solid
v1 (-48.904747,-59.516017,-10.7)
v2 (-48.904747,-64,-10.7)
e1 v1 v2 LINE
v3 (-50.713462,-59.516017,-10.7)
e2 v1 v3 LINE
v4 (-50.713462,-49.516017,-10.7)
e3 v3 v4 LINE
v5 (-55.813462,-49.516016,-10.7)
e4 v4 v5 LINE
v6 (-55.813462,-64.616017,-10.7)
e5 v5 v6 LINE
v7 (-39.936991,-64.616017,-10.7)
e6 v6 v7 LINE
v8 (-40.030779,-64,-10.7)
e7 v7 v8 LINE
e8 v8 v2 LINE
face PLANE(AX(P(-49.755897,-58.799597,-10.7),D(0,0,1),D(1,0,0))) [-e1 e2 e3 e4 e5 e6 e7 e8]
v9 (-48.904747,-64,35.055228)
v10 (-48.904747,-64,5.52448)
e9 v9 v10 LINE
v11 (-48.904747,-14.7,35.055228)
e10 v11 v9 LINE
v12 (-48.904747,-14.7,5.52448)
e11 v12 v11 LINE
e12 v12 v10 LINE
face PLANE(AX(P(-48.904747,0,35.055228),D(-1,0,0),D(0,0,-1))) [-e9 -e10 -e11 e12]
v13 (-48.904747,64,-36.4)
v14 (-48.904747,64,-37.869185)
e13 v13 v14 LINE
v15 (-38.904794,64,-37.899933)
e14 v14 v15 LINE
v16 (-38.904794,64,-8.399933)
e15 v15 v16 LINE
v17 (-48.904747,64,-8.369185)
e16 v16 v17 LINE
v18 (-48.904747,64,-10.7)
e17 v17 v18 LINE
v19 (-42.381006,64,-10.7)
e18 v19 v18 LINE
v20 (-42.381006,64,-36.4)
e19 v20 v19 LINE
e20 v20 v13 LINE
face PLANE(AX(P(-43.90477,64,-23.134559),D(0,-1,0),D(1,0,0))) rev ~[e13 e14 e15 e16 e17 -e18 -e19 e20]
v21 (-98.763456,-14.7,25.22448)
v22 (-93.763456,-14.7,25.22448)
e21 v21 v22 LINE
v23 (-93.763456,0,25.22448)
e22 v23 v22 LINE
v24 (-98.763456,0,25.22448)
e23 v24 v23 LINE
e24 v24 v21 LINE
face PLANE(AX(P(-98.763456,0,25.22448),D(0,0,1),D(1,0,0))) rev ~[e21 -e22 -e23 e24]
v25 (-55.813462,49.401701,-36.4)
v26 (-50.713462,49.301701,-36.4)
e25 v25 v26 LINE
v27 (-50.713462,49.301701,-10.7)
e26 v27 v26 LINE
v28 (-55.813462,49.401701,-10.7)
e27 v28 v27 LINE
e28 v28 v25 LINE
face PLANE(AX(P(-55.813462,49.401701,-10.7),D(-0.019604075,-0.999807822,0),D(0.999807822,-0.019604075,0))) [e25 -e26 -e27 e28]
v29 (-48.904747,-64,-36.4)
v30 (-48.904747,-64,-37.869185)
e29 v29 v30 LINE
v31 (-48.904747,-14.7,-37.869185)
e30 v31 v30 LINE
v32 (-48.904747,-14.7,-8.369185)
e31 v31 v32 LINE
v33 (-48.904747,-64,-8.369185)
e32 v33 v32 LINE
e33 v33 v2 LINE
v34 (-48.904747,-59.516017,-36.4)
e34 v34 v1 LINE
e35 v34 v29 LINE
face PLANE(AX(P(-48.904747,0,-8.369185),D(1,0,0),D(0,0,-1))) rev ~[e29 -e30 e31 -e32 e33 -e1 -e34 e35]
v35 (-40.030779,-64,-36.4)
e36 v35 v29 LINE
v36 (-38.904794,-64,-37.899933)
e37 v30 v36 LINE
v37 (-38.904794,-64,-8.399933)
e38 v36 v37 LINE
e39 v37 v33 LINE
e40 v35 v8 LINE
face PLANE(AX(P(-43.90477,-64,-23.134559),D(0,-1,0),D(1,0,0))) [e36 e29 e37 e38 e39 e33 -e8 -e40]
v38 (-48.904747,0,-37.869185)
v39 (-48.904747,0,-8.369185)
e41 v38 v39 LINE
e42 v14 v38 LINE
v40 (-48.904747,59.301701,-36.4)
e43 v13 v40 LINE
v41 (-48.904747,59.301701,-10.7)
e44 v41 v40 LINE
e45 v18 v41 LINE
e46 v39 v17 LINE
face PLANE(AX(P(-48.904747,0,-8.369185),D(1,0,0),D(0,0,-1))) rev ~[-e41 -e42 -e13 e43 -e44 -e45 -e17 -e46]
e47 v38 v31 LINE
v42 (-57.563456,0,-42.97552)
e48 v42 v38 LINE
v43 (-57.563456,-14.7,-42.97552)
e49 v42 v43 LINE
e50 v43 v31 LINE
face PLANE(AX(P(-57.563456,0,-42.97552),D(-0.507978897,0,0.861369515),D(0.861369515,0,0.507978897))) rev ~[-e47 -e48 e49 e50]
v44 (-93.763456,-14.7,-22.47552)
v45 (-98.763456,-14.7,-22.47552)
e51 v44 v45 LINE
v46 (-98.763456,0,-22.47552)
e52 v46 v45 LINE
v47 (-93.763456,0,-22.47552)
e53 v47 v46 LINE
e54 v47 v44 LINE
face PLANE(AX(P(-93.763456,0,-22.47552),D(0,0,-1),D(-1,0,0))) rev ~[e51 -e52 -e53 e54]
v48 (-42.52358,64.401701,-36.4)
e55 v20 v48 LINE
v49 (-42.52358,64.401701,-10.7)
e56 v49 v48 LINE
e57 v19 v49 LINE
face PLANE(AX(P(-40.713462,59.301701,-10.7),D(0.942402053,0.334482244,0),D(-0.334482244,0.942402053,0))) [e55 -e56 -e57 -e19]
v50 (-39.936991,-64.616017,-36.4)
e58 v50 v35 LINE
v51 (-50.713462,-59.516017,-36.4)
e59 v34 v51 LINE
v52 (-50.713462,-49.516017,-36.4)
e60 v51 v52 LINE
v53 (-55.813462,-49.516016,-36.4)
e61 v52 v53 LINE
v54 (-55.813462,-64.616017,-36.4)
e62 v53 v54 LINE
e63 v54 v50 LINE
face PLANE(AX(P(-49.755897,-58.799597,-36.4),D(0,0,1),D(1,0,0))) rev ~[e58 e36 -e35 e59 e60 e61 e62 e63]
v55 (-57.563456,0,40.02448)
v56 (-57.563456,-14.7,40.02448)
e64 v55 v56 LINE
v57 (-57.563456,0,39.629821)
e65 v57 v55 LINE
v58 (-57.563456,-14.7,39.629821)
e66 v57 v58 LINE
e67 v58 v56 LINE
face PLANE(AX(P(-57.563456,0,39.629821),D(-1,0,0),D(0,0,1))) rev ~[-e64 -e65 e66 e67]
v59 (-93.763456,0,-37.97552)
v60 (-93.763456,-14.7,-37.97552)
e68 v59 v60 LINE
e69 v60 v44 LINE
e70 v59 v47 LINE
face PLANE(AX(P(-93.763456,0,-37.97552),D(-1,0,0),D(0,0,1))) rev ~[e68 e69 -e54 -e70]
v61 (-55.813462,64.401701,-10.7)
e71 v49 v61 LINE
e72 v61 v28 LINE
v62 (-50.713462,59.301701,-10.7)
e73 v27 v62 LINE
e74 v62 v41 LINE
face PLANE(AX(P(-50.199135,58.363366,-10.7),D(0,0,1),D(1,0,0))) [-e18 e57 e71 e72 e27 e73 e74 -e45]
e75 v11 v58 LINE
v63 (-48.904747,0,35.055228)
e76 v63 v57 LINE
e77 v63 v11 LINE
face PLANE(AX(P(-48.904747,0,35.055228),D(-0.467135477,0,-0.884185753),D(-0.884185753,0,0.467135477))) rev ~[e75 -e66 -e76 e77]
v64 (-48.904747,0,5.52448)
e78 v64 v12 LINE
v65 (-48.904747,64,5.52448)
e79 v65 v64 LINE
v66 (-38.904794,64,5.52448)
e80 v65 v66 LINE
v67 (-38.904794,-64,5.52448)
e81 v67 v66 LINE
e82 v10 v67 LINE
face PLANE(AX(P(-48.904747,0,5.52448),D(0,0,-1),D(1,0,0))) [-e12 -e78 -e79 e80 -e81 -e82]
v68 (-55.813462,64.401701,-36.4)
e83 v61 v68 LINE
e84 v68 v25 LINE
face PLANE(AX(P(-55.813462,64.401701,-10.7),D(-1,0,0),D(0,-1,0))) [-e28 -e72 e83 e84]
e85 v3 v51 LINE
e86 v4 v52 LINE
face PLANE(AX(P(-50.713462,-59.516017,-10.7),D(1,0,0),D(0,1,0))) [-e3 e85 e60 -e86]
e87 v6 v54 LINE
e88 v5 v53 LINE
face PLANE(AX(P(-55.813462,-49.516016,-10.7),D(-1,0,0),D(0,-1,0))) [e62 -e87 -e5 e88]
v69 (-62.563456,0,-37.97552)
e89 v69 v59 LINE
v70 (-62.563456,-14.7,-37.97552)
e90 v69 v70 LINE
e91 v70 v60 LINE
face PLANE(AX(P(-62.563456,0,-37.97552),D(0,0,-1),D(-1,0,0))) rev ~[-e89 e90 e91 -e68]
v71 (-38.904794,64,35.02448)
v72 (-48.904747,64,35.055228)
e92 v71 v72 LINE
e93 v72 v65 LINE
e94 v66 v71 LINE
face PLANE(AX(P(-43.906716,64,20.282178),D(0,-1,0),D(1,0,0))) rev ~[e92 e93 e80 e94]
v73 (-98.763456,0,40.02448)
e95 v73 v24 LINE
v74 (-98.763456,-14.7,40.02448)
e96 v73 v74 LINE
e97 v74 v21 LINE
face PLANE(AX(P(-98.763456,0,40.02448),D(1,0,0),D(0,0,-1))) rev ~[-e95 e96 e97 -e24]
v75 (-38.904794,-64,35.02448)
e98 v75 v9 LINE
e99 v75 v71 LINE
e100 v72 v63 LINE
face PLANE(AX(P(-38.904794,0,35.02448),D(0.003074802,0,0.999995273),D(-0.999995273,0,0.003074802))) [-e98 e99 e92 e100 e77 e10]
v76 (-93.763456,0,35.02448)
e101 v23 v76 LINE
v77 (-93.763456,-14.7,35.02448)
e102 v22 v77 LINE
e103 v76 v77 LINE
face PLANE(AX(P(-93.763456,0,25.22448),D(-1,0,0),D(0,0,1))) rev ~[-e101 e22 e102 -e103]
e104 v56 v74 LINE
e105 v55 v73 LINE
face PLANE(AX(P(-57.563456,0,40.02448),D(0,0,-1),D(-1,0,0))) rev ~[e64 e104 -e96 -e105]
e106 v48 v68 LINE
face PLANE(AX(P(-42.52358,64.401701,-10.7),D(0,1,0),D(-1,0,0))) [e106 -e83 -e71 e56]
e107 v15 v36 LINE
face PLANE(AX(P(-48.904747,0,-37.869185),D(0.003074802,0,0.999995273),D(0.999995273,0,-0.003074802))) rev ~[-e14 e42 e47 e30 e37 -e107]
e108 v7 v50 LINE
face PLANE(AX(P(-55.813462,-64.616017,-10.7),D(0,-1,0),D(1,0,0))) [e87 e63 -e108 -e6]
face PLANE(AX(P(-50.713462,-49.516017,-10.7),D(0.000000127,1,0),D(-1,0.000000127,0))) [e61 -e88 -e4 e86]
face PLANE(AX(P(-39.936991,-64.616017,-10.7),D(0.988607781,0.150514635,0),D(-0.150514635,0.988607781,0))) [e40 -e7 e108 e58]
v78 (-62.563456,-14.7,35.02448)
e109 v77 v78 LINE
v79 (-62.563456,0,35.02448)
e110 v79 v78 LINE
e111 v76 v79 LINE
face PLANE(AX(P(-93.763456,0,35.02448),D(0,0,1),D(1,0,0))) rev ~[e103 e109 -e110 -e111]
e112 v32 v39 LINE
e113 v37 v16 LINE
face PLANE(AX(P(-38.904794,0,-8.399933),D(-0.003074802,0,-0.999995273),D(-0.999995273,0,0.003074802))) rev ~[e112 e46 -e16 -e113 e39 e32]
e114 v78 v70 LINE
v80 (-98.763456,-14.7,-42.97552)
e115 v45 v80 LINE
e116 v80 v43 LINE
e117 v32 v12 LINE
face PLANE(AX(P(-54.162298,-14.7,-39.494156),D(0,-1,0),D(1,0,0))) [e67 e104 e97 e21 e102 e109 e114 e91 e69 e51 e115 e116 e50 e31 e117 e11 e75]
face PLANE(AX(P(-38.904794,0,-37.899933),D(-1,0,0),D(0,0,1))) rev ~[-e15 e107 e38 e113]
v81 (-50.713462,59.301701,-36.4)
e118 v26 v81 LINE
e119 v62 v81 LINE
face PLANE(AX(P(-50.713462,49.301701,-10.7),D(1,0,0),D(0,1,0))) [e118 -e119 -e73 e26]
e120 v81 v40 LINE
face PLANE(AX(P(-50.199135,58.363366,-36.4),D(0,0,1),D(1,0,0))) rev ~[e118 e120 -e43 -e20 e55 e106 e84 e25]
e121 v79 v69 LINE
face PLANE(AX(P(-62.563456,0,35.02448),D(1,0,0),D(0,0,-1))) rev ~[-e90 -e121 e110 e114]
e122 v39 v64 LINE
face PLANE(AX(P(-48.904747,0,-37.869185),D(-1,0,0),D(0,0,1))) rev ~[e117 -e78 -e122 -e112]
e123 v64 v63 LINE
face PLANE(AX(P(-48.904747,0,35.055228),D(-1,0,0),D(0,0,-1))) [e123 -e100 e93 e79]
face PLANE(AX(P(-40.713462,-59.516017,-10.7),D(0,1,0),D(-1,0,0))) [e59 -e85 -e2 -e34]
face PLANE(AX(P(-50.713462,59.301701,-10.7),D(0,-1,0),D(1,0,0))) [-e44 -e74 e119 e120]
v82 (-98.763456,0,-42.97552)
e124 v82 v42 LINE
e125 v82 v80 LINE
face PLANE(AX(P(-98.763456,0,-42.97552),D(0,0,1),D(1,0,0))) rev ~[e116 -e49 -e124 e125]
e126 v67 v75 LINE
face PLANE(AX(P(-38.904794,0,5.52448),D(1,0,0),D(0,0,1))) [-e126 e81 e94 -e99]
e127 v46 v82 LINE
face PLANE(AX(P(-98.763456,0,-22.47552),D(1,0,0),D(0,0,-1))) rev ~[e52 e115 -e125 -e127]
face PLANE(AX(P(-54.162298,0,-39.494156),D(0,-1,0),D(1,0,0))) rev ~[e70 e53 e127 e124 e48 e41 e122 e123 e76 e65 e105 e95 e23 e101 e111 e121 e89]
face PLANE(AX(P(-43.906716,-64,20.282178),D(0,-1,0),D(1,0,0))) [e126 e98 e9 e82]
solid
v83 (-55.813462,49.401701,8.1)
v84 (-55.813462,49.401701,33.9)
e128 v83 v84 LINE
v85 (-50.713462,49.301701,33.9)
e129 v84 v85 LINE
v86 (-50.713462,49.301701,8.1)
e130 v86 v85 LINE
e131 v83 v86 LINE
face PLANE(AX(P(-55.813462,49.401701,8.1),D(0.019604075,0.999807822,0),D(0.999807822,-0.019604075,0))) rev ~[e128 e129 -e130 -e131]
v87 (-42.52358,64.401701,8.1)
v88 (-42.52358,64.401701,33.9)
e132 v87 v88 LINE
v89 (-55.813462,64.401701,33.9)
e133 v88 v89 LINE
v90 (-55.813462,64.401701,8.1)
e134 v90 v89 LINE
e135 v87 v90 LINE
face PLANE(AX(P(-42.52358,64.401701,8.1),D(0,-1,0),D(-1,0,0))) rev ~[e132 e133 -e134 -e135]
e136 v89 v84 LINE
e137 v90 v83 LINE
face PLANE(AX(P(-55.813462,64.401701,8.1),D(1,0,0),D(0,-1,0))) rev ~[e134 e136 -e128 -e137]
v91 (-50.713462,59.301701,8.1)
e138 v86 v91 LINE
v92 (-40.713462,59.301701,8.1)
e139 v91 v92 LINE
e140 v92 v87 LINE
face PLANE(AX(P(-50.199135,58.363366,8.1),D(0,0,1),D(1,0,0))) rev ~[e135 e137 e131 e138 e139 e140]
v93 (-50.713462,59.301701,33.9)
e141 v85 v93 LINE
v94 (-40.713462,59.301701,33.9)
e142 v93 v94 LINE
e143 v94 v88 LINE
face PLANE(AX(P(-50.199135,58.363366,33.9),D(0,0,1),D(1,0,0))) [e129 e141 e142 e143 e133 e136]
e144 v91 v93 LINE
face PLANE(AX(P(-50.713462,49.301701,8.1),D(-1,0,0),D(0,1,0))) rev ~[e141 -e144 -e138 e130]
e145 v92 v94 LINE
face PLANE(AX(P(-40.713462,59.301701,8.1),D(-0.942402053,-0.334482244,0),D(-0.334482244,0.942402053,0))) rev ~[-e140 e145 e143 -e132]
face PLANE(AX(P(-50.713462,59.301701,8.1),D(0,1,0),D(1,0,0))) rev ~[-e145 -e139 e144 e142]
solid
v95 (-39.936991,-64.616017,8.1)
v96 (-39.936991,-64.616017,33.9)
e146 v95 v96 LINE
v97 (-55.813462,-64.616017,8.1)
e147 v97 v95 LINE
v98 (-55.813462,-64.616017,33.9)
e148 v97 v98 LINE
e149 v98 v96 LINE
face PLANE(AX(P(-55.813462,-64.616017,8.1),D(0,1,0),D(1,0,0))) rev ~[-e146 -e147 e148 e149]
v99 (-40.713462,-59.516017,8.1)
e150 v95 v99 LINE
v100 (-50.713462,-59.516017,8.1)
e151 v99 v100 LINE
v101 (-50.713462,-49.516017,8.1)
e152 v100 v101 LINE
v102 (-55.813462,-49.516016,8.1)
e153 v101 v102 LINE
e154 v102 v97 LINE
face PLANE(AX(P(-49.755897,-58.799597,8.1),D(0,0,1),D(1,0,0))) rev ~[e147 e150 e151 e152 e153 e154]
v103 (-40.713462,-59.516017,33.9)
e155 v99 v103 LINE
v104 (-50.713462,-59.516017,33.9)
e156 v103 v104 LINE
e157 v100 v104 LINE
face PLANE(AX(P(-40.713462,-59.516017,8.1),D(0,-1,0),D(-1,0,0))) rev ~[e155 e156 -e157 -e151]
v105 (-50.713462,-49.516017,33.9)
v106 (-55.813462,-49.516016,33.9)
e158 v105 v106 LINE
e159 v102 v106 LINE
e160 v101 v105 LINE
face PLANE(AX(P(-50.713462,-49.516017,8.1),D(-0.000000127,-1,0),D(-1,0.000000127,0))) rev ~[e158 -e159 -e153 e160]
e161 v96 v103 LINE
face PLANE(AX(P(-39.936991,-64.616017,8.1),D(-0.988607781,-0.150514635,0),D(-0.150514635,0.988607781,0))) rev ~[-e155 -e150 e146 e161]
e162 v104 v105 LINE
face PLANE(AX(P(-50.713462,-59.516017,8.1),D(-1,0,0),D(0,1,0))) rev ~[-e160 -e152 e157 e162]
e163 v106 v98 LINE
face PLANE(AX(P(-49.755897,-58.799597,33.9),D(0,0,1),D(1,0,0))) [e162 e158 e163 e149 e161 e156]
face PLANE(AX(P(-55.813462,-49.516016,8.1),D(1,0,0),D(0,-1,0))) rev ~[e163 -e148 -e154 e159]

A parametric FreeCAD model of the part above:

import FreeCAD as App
import Part
import Sketcher

V = App.Vector


def add_polygon(sketch, points):
    """Adds a closed chain of lines whose ends are joined by coincident constraints."""
    first, n = sketch.GeometryCount, len(points)
    for a, b in zip(points, points[1:] + points[:1]):
        sketch.addGeometry(Part.LineSegment(App.Vector(*a, 0), App.Vector(*b, 0)), False)
    for i in range(n):
        sketch.addConstraint(Sketcher.Constraint("Coincident", first + i, 2, first + (i + 1) % n, 1))

doc = App.newDocument("Part")
body = doc.addObject("PartDesign::Body", "Body")

# Sketch on XZ plane
sketch1 = doc.addObject("Sketcher::SketchObject", "Sketch")
body.addObject(sketch1)
sketch1.AttachmentSupport = (doc.XZ_Plane, [""])
sketch1.MapMode = "FlatFace"
add_polygon(sketch1, [(-57.56, -42.98), (-48.9, -37.87), (-48.9, 35.06), (-57.56, 39.63), (-57.56, 40.02), (-98.76, 40.02), (-98.76, 25.22), (-93.76, 25.22), (-93.76, 35.02), (-62.56, 35.02), (-62.56, -37.98), (-93.76, -37.98), (-93.76, -22.48), (-98.76, -22.48), (-98.76, -42.98)])  # lines 0-14
sketch1.addConstraint(Sketcher.Constraint("Vertical", 1))
sketch1.addConstraint(Sketcher.Constraint("Vertical", 3))
sketch1.addConstraint(Sketcher.Constraint("Horizontal", 4))
sketch1.addConstraint(Sketcher.Constraint("Vertical", 5))
sketch1.addConstraint(Sketcher.Constraint("Horizontal", 6))
sketch1.addConstraint(Sketcher.Constraint("Vertical", 7))
sketch1.addConstraint(Sketcher.Constraint("Horizontal", 8))
sketch1.addConstraint(Sketcher.Constraint("Vertical", 9))
sketch1.addConstraint(Sketcher.Constraint("Horizontal", 10))
sketch1.addConstraint(Sketcher.Constraint("Vertical", 11))
sketch1.addConstraint(Sketcher.Constraint("Horizontal", 12))
sketch1.addConstraint(Sketcher.Constraint("Vertical", 13))
sketch1.addConstraint(Sketcher.Constraint("Horizontal", 14))
sketch1.addConstraint(Sketcher.Constraint("Vertical", 7, 2, 10, 2))
sketch1.addConstraint(Sketcher.Constraint("Vertical", 5, 2, 12, 2))
sketch1.addConstraint(Sketcher.Constraint("Vertical", 3, 2, 14, 2))
sketch1.addConstraint(Sketcher.Constraint("DistanceX", 6, 1, 6, 2, 5.0))
sketch1.addConstraint(Sketcher.Constraint("DistanceY", 9, 2, 9, 1, 73.0))
sketch1.addConstraint(Sketcher.Constraint("DistanceX", 4, 2, 4, 1, 41.2))
sketch1.addConstraint(Sketcher.Constraint("DistanceX", 8, 1, 8, 2, 31.2))
sketch1.addConstraint(Sketcher.Constraint("DistanceY", 5, 2, 5, 1, 14.8))
sketch1.addConstraint(Sketcher.Constraint("DistanceY", 7, 1, 7, 2, 9.8))
sketch1.addConstraint(Sketcher.Constraint("DistanceY", 11, 1, 11, 2, 15.5))
sketch1.addConstraint(Sketcher.Constraint("DistanceY", 13, 2, 13, 1, 20.5))
sketch1.addConstraint(Sketcher.Constraint("DistanceY", 3, 1, 3, 2, 0.394659))
sketch1.addConstraint(Sketcher.Constraint("Distance", 0, 10.052259))
sketch1.addConstraint(Sketcher.Constraint("DistanceY", 1, 1, 1, 2, 72.924413))
sketch1.addConstraint(Sketcher.Constraint("DistanceY", -1, 1, 2, 2, 39.629821))
sketch1.addConstraint(Sketcher.Constraint("DistanceX", 2, 2, 1, 2, 8.658709))
sketch1.addConstraint(Sketcher.Constraint("DistanceX", 0, 2, -1, 1, 48.904747))
pad1 = doc.addObject("PartDesign::Pad", "Pad")
body.addObject(pad1)
pad1.Profile = sketch1
pad1.Length = 14.7

# Sketch on XZ plane
sketch2 = doc.addObject("Sketcher::SketchObject", "Sketch001")
body.addObject(sketch2)
sketch2.AttachmentSupport = (doc.XZ_Plane, [""])
sketch2.MapMode = "FlatFace"
add_polygon(sketch2, [(-49, -8), (-49, -38), (-39, -38), (-39, -8)])  # lines 0-3
add_polygon(sketch2, [(-39, 35), (-49, 35), (-49, 6), (-39, 6)])  # lines 4-7
sketch2.addConstraint(Sketcher.Constraint("Vertical", 0))
sketch2.addConstraint(Sketcher.Constraint("Vertical", 2))
sketch2.addConstraint(Sketcher.Constraint("Vertical", 5))
sketch2.addConstraint(Sketcher.Constraint("Horizontal", 6))
sketch2.addConstraint(Sketcher.Constraint("Vertical", 7))
sketch2.addConstraint(Sketcher.Constraint("Parallel", 1, 3))
sketch2.addConstraint(Sketcher.Constraint("Parallel", 3, 4))
sketch2.addConstraint(Sketcher.Constraint("Vertical", 3, 2, 4, 2))
sketch2.addConstraint(Sketcher.Constraint("Vertical", 2, 2, 6, 2))
sketch2.addConstraint(Sketcher.Constraint("Equal", 2, 7))
sketch2.addConstraint(Sketcher.Constraint("Distance", 1, 10.0))
sketch2.addConstraint(Sketcher.Constraint("DistanceY", 0, 2, 0, 1, 29.5))
sketch2.addConstraint(Sketcher.Constraint("DistanceY", 5, 2, 5, 1, 29.530748))
sketch2.addConstraint(Sketcher.Constraint("DistanceY", -1, 1, 5, 2, 5.52448))
sketch2.addConstraint(Sketcher.Constraint("DistanceY", 2, 2, 4, 2, 43.455161))
sketch2.addConstraint(Sketcher.Constraint("DistanceX", 0, 2, -1, 1, 48.904747))
pad2 = doc.addObject("PartDesign::Pad", "Pad001")
body.addObject(pad2)
pad2.Profile = sketch2
pad2.Length = 128
pad2.Midplane = True

# Sketch on XY plane
sketch3 = doc.addObject("Sketcher::SketchObject", "Sketch002")
body.addObject(sketch3)
sketch3.AttachmentSupport = (doc.XY_Plane, [""])
sketch3.MapMode = "FlatFace"
sketch3.AttachmentOffset = App.Placement(V(0, 0, -10.7), App.Rotation())
add_polygon(sketch3, [(-40, -65), (-41, -60), (-51, -60), (-51, -50), (-56, -50), (-56, -65)])  # lines 0-5
add_polygon(sketch3, [(-51, 59), (-41, 59), (-43, 64), (-56, 64), (-56, 49), (-51, 49)])  # lines 6-11
sketch3.addConstraint(Sketcher.Constraint("Horizontal", 1))
sketch3.addConstraint(Sketcher.Constraint("Vertical", 2))
sketch3.addConstraint(Sketcher.Constraint("Horizontal", 3))
sketch3.addConstraint(Sketcher.Constraint("Vertical", 4))
sketch3.addConstraint(Sketcher.Constraint("Horizontal", 5))
sketch3.addConstraint(Sketcher.Constraint("Horizontal", 6))
sketch3.addConstraint(Sketcher.Constraint("Horizontal", 8))
sketch3.addConstraint(Sketcher.Constraint("Vertical", 9))
sketch3.addConstraint(Sketcher.Constraint("Vertical", 11))
sketch3.addConstraint(Sketcher.Constraint("Vertical", 0, 2, 6, 2))
sketch3.addConstraint(Sketcher.Constraint("Vertical", 4, 2, 8, 2))
sketch3.addConstraint(Sketcher.Constraint("Vertical", 2, 2, 10, 2))
sketch3.addConstraint(Sketcher.Constraint("Equal", 6, 2))
sketch3.addConstraint(Sketcher.Constraint("Equal", 2, 11))
sketch3.addConstraint(Sketcher.Constraint("DistanceX", 1, 2, 1, 1, 10.0))
sketch3.addConstraint(Sketcher.Constraint("DistanceY", 9, 2, 9, 1, 15.0))
sketch3.addConstraint(Sketcher.Constraint("DistanceX", 3, 2, 3, 1, 5.1))
sketch3.addConstraint(Sketcher.Constraint("DistanceY", 4, 2, 4, 1, 15.100001))
sketch3.addConstraint(Sketcher.Constraint("DistanceY", 6, 2, 7, 2, 5.1))
sketch3.addConstraint(Sketcher.Constraint("DistanceX", 5, 1, 5, 2, 15.87647))
sketch3.addConstraint(Sketcher.Constraint("DistanceX", 8, 2, 8, 1, 13.289881))
sketch3.addConstraint(Sketcher.Constraint("DistanceY", -1, 1, 6, 2, 59.301701))
sketch3.addConstraint(Sketcher.Constraint("DistanceX", 0, 2, -1, 1, 40.713462))
sketch3.addConstraint(Sketcher.Constraint("DistanceY", 2, 2, 6, 2, 108.817718))
pad3 = doc.addObject("PartDesign::Pad", "Pad002")
body.addObject(pad3)
pad3.Profile = sketch3
pad3.Length = 25.7
pad3.Reversed = True
body2 = doc.addObject("PartDesign::Body", "Body001")

# Sketch on XY plane
sketch4 = doc.addObject("Sketcher::SketchObject", "Sketch003")
body2.addObject(sketch4)
sketch4.AttachmentSupport = (doc.getObject("XY_Plane001"), [""])
sketch4.MapMode = "FlatFace"
sketch4.AttachmentOffset = App.Placement(V(0, 0, 8.1), App.Rotation())
add_polygon(sketch4, [(-51, 59), (-41, 59), (-43, 64), (-56, 64), (-56, 49), (-51, 49)])  # lines 0-5
sketch4.addConstraint(Sketcher.Constraint("Horizontal", 0))
sketch4.addConstraint(Sketcher.Constraint("Horizontal", 2))
sketch4.addConstraint(Sketcher.Constraint("Vertical", 3))
sketch4.addConstraint(Sketcher.Constraint("Vertical", 5))
sketch4.addConstraint(Sketcher.Constraint("Equal", 0, 5))
sketch4.addConstraint(Sketcher.Constraint("DistanceX", 0, 1, 0, 2, 10.0))
sketch4.addConstraint(Sketcher.Constraint("DistanceY", 3, 2, 3, 1, 15.0))
sketch4.addConstraint(Sketcher.Constraint("DistanceY", 0, 2, 1, 2, 5.1))
sketch4.addConstraint(Sketcher.Constraint("DistanceX", 2, 2, 0, 2, 15.1))
sketch4.addConstraint(Sketcher.Constraint("DistanceX", 2, 2, 2, 1, 13.289881))
sketch4.addConstraint(Sketcher.Constraint("DistanceY", -1, 1, 0, 2, 59.301701))
sketch4.addConstraint(Sketcher.Constraint("DistanceX", 0, 2, -1, 1, 40.713462))
pad4 = doc.addObject("PartDesign::Pad", "Pad003")
body2.addObject(pad4)
pad4.Profile = sketch4
pad4.Length = 25.8
body3 = doc.addObject("PartDesign::Body", "Body002")

# Sketch on XY plane
sketch5 = doc.addObject("Sketcher::SketchObject", "Sketch004")
body3.addObject(sketch5)
sketch5.AttachmentSupport = (doc.getObject("XY_Plane002"), [""])
sketch5.MapMode = "FlatFace"
sketch5.AttachmentOffset = App.Placement(V(0, 0, 8.1), App.Rotation())
add_polygon(sketch5, [(-40, -65), (-41, -60), (-51, -60), (-51, -50), (-56, -50), (-56, -65)])  # lines 0-5
sketch5.addConstraint(Sketcher.Constraint("Horizontal", 1))
sketch5.addConstraint(Sketcher.Constraint("Vertical", 2))
sketch5.addConstraint(Sketcher.Constraint("Horizontal", 3))
sketch5.addConstraint(Sketcher.Constraint("Vertical", 4))
sketch5.addConstraint(Sketcher.Constraint("Horizontal", 5))
sketch5.addConstraint(Sketcher.Constraint("Equal", 1, 2))
sketch5.addConstraint(Sketcher.Constraint("DistanceX", 1, 2, 1, 1, 10.0))
sketch5.addConstraint(Sketcher.Constraint("DistanceX", 3, 2, 3, 1, 5.1))
sketch5.addConstraint(Sketcher.Constraint("DistanceY", 4, 2, 4, 1, 15.100001))
sketch5.addConstraint(Sketcher.Constraint("DistanceX", 5, 1, 5, 2, 15.87647))
sketch5.addConstraint(Sketcher.Constraint("DistanceX", 0, 2, -1, 1, 40.713462))
sketch5.addConstraint(Sketcher.Constraint("DistanceY", 0, 2, -1, 1, 59.516017))
pad5 = doc.addObject("PartDesign::Pad", "Pad004")
body3.addObject(pad5)
pad5.Profile = sketch5
pad5.Length = 25.8

doc.recompute()
